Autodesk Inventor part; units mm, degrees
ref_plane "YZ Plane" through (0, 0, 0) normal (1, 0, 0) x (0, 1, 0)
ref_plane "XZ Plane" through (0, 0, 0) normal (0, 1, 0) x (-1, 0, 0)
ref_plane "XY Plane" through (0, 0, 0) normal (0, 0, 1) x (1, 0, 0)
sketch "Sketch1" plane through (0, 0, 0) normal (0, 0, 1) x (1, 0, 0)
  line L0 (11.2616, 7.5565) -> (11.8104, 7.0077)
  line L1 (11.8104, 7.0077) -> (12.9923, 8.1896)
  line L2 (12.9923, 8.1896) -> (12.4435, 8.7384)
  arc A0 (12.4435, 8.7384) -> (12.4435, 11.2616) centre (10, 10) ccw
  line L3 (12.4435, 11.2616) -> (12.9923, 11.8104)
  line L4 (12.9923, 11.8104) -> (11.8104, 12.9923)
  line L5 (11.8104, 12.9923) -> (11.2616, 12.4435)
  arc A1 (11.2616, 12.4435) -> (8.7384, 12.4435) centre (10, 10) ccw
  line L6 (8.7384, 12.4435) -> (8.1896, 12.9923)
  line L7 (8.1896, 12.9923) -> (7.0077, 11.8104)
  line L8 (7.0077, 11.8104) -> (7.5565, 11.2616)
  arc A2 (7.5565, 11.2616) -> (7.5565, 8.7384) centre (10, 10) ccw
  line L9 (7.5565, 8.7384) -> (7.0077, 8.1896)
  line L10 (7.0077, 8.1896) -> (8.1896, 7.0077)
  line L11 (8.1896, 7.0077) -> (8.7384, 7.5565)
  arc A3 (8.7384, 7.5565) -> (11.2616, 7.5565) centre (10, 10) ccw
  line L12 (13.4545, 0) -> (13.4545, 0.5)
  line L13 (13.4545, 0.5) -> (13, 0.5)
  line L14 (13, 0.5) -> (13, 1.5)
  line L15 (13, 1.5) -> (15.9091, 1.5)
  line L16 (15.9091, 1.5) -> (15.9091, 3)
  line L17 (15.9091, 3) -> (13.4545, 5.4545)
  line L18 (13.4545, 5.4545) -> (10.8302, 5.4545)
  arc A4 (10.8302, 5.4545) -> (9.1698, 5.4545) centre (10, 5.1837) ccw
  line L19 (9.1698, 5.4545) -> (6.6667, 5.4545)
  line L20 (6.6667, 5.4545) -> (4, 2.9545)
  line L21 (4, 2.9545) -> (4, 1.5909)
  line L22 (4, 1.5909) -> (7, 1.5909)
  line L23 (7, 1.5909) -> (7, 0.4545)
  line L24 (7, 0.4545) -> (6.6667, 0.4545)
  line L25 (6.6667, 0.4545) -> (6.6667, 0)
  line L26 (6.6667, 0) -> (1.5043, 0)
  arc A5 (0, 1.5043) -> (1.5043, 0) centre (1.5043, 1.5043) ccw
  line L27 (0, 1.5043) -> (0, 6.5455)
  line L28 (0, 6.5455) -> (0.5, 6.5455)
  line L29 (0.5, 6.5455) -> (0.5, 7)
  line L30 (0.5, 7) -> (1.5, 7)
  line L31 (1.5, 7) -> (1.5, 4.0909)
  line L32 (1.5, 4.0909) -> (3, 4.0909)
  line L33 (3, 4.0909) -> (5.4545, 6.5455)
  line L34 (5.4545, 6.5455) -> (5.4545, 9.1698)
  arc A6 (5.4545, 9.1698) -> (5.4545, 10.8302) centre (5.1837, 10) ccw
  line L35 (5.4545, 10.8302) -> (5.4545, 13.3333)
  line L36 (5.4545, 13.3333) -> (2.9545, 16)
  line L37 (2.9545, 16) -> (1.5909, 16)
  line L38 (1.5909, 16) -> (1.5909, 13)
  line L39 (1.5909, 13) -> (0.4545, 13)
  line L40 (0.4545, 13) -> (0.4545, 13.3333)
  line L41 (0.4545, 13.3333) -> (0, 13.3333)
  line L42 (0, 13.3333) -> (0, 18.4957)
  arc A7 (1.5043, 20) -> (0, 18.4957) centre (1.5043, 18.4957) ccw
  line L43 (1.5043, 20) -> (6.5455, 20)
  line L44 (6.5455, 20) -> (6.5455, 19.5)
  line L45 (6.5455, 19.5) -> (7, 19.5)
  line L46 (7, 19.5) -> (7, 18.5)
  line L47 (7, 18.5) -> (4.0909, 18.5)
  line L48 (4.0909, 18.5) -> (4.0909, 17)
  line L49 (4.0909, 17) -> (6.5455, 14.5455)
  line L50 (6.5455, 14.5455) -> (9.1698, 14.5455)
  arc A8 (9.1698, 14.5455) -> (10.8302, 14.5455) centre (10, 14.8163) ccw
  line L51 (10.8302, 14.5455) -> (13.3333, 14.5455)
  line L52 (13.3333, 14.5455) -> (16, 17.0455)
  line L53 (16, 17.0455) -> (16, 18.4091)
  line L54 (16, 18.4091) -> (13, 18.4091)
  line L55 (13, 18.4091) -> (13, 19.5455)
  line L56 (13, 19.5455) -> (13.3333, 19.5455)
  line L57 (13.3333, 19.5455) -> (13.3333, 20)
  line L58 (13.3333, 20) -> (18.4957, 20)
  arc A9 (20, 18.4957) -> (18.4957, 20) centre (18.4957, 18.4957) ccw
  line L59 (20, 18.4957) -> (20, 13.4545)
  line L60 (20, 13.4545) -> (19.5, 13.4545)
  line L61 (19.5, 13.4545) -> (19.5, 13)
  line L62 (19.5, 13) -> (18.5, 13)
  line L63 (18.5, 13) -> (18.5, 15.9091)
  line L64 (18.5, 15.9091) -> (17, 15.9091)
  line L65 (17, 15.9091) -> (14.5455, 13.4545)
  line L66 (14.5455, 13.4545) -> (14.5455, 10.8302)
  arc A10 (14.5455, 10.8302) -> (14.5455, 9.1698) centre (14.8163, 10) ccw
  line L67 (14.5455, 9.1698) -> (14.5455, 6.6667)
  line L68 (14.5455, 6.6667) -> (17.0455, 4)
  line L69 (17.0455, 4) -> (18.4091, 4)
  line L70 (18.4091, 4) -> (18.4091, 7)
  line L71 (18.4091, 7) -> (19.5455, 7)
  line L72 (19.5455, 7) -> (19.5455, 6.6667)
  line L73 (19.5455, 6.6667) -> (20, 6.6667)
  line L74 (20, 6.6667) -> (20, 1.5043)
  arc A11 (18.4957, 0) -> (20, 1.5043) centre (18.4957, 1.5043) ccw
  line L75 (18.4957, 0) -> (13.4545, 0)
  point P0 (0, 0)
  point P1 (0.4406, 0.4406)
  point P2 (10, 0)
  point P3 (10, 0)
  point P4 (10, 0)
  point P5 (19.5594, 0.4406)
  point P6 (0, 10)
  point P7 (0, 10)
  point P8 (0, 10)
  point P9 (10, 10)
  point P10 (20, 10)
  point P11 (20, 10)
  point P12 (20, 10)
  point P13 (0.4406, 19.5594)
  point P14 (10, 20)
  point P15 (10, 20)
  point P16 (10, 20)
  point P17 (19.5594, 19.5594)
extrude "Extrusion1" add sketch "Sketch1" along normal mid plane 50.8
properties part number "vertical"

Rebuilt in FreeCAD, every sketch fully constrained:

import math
import FreeCAD as App
import Part
import Sketcher

V = App.Vector
Q = App.Units.Quantity

doc = App.newDocument("Part")
body = doc.addObject("PartDesign::Body", "Body")

# Sketch on XY plane
sketch1 = body.newObject("Sketcher::SketchObject", "Sketch")
sketch1.AttachmentSupport = (doc.getObject("XY_Plane"), [""])
sketch1.MapMode = "FlatFace"
sketch1.addGeometry([
    Part.LineSegment(V(13.4545, 0.5, 0), V(13.4545, 0, 0)),  # 0
    Part.LineSegment(V(13.4545, 0, 0), V(18.4957, 0, 0)),  # 1
    Part.ArcOfCircle(Part.Circle(V(18.4957, 1.5043, 0), V(0, 0, 1), 1.5043), math.radians(-90), math.radians(0)),  # 2
    Part.LineSegment(V(20, 1.5043, 0), V(20, 6.6667, 0)),  # 3
    Part.LineSegment(V(20, 6.6667, 0), V(19.5455, 6.6667, 0)),  # 4
    Part.LineSegment(V(19.5455, 6.6667, 0), V(19.5455, 7, 0)),  # 5
    Part.LineSegment(V(19.5455, 7, 0), V(18.4091, 7, 0)),  # 6
    Part.LineSegment(V(18.4091, 7, 0), V(18.4091, 4, 0)),  # 7
    Part.LineSegment(V(18.4091, 4, 0), V(17.0455, 4, 0)),  # 8
    Part.LineSegment(V(17.0455, 4, 0), V(14.5455, 6.6667, 0)),  # 9
    Part.LineSegment(V(14.5455, 6.6667, 0), V(14.5455, 9.1698, 0)),  # 10
    Part.ArcOfCircle(Part.Circle(V(14.8163, 10, 0), V(0, 0, 1), 0.873249), math.radians(108.065625), math.radians(251.934375)),  # 11
    Part.LineSegment(V(14.5455, 10.8302, 0), V(14.5455, 13.4545, 0)),  # 12
    Part.LineSegment(V(14.5455, 13.4545, 0), V(17, 15.9091, 0)),  # 13
    Part.LineSegment(V(17, 15.9091, 0), V(18.5, 15.9091, 0)),  # 14
    Part.LineSegment(V(18.5, 15.9091, 0), V(18.5, 13, 0)),  # 15
    Part.LineSegment(V(18.5, 13, 0), V(19.5, 13, 0)),  # 16
    Part.LineSegment(V(19.5, 13, 0), V(19.5, 13.4545, 0)),  # 17
    Part.LineSegment(V(19.5, 13.4545, 0), V(20, 13.4545, 0)),  # 18
    Part.LineSegment(V(20, 13.4545, 0), V(20, 18.4957, 0)),  # 19
    Part.ArcOfCircle(Part.Circle(V(18.4957, 18.4957, 0), V(0, 0, 1), 1.5043), math.radians(0), math.radians(90)),  # 20
    Part.LineSegment(V(18.4957, 20, 0), V(13.3333, 20, 0)),  # 21
    Part.LineSegment(V(13.3333, 20, 0), V(13.3333, 19.5455, 0)),  # 22
    Part.LineSegment(V(13.3333, 19.5455, 0), V(13, 19.5455, 0)),  # 23
    Part.LineSegment(V(13, 19.5455, 0), V(13, 18.4091, 0)),  # 24
    Part.LineSegment(V(13, 18.4091, 0), V(16, 18.4091, 0)),  # 25
    Part.LineSegment(V(16, 18.4091, 0), V(16, 17.0455, 0)),  # 26
    Part.LineSegment(V(16, 17.0455, 0), V(13.3333, 14.5455, 0)),  # 27
    Part.LineSegment(V(13.3333, 14.5455, 0), V(10.8302, 14.5455, 0)),  # 28
    Part.ArcOfCircle(Part.Circle(V(10, 14.8163, 0), V(0, 0, 1), 0.873249), math.radians(-161.934375), math.radians(-18.065625)),  # 29
    Part.LineSegment(V(9.1698, 14.5455, 0), V(6.5455, 14.5455, 0)),  # 30
    Part.LineSegment(V(6.5455, 14.5455, 0), V(4.0909, 17, 0)),  # 31
    Part.LineSegment(V(4.0909, 17, 0), V(4.0909, 18.5, 0)),  # 32
    Part.LineSegment(V(4.0909, 18.5, 0), V(7, 18.5, 0)),  # 33
    Part.LineSegment(V(7, 18.5, 0), V(7, 19.5, 0)),  # 34
    Part.LineSegment(V(7, 19.5, 0), V(6.5455, 19.5, 0)),  # 35
    Part.LineSegment(V(6.5455, 19.5, 0), V(6.5455, 20, 0)),  # 36
    Part.LineSegment(V(6.5455, 20, 0), V(1.5043, 20, 0)),  # 37
    Part.ArcOfCircle(Part.Circle(V(1.5043, 18.4957, 0), V(0, 0, 1), 1.5043), math.radians(90), math.radians(180)),  # 38
    Part.LineSegment(V(0, 18.4957, 0), V(0, 13.3333, 0)),  # 39
    Part.LineSegment(V(0, 13.3333, 0), V(0.4545, 13.3333, 0)),  # 40
    Part.LineSegment(V(0.4545, 13.3333, 0), V(0.4545, 13, 0)),  # 41
    Part.LineSegment(V(0.4545, 13, 0), V(1.5909, 13, 0)),  # 42
    Part.LineSegment(V(1.5909, 13, 0), V(1.5909, 16, 0)),  # 43
    Part.LineSegment(V(1.5909, 16, 0), V(2.9545, 16, 0)),  # 44
    Part.LineSegment(V(2.9545, 16, 0), V(5.4545, 13.3333, 0)),  # 45
    Part.LineSegment(V(5.4545, 13.3333, 0), V(5.4545, 10.8302, 0)),  # 46
    Part.ArcOfCircle(Part.Circle(V(5.1837, 10, 0), V(0, 0, 1), 0.873249), math.radians(-71.934375), math.radians(71.934375)),  # 47
    Part.LineSegment(V(5.4545, 9.1698, 0), V(5.4545, 6.5455, 0)),  # 48
    Part.LineSegment(V(5.4545, 6.5455, 0), V(3, 4.0909, 0)),  # 49
    Part.LineSegment(V(3, 4.0909, 0), V(1.5, 4.0909, 0)),  # 50
    Part.LineSegment(V(1.5, 4.0909, 0), V(1.5, 7, 0)),  # 51
    Part.LineSegment(V(1.5, 7, 0), V(0.5, 7, 0)),  # 52
    Part.LineSegment(V(0.5, 7, 0), V(0.5, 6.5455, 0)),  # 53
    Part.LineSegment(V(0.5, 6.5455, 0), V(0, 6.5455, 0)),  # 54
    Part.LineSegment(V(0, 6.5455, 0), V(0, 1.5043, 0)),  # 55
    Part.ArcOfCircle(Part.Circle(V(1.5043, 1.5043, 0), V(0, 0, 1), 1.5043), math.radians(180), math.radians(270)),  # 56
    Part.LineSegment(V(1.5043, 0, 0), V(6.6667, 0, 0)),  # 57
    Part.LineSegment(V(6.6667, 0, 0), V(6.6667, 0.4545, 0)),  # 58
    Part.LineSegment(V(6.6667, 0.4545, 0), V(7, 0.4545, 0)),  # 59
    Part.LineSegment(V(7, 0.4545, 0), V(7, 1.5909, 0)),  # 60
    Part.LineSegment(V(7, 1.5909, 0), V(4, 1.5909, 0)),  # 61
    Part.LineSegment(V(4, 1.5909, 0), V(4, 2.9545, 0)),  # 62
    Part.LineSegment(V(4, 2.9545, 0), V(6.6667, 5.4545, 0)),  # 63
    Part.LineSegment(V(6.6667, 5.4545, 0), V(9.1698, 5.4545, 0)),  # 64
    Part.ArcOfCircle(Part.Circle(V(10, 5.1837, 0), V(0, 0, 1), 0.873249), math.radians(18.065625), math.radians(161.934375)),  # 65
    Part.LineSegment(V(10.8302, 5.4545, 0), V(13.4545, 5.4545, 0)),  # 66
    Part.LineSegment(V(13.4545, 5.4545, 0), V(15.9091, 3, 0)),  # 67
    Part.LineSegment(V(15.9091, 3, 0), V(15.9091, 1.5, 0)),  # 68
    Part.LineSegment(V(15.9091, 1.5, 0), V(13, 1.5, 0)),  # 69
    Part.LineSegment(V(13, 1.5, 0), V(13, 0.5, 0)),  # 70
    Part.LineSegment(V(13, 0.5, 0), V(13.4545, 0.5, 0)),  # 71
    Part.LineSegment(V(11.8104, 7.0077, 0), V(11.2616, 7.5565, 0)),  # 72
    Part.ArcOfCircle(Part.Circle(V(10, 10, 0), V(0, 0, 1), 2.749969), math.radians(-117.307695), math.radians(-62.692305)),  # 73
    Part.LineSegment(V(8.7384, 7.5565, 0), V(8.1896, 7.0077, 0)),  # 74
    Part.LineSegment(V(8.1896, 7.0077, 0), V(7.0077, 8.1896, 0)),  # 75
    Part.LineSegment(V(7.0077, 8.1896, 0), V(7.5565, 8.7384, 0)),  # 76
    Part.ArcOfCircle(Part.Circle(V(10, 10, 0), V(0, 0, 1), 2.749969), math.radians(152.692305), math.radians(207.307695)),  # 77
    Part.LineSegment(V(7.5565, 11.2616, 0), V(7.0077, 11.8104, 0)),  # 78
    Part.LineSegment(V(7.0077, 11.8104, 0), V(8.1896, 12.9923, 0)),  # 79
    Part.LineSegment(V(8.1896, 12.9923, 0), V(8.7384, 12.4435, 0)),  # 80
    Part.ArcOfCircle(Part.Circle(V(10, 10, 0), V(0, 0, 1), 2.749969), math.radians(62.692305), math.radians(117.307695)),  # 81
    Part.LineSegment(V(11.2616, 12.4435, 0), V(11.8104, 12.9923, 0)),  # 82
    Part.LineSegment(V(11.8104, 12.9923, 0), V(12.9923, 11.8104, 0)),  # 83
    Part.LineSegment(V(12.9923, 11.8104, 0), V(12.4435, 11.2616, 0)),  # 84
    Part.ArcOfCircle(Part.Circle(V(10, 10, 0), V(0, 0, 1), 2.749969), math.radians(-27.307695), math.radians(27.307695)),  # 85
    Part.LineSegment(V(12.4435, 8.7384, 0), V(12.9923, 8.1896, 0)),  # 86
    Part.LineSegment(V(12.9923, 8.1896, 0), V(11.8104, 7.0077, 0)),  # 87
], False)
sketch1.addConstraint([
    Sketcher.Constraint("Coincident", 0, 2, 1, 1),
    Sketcher.Constraint("Tangent", 1, 2, 2, 1),
    Sketcher.Constraint("Tangent", 2, 2, 3, 1),
    Sketcher.Constraint("Coincident", 3, 2, 4, 1),
    Sketcher.Constraint("Coincident", 4, 2, 5, 1),
    Sketcher.Constraint("Coincident", 5, 2, 6, 1),
    Sketcher.Constraint("Coincident", 6, 2, 7, 1),
    Sketcher.Constraint("Coincident", 7, 2, 8, 1),
    Sketcher.Constraint("Coincident", 8, 2, 9, 1),
    Sketcher.Constraint("Coincident", 9, 2, 10, 1),
    Sketcher.Constraint("Coincident", 10, 2, 11, 2),
    Sketcher.Constraint("Coincident", 11, 1, 12, 1),
    Sketcher.Constraint("Coincident", 12, 2, 13, 1),
    Sketcher.Constraint("Coincident", 13, 2, 14, 1),
    Sketcher.Constraint("Coincident", 14, 2, 15, 1),
    Sketcher.Constraint("Coincident", 15, 2, 16, 1),
    Sketcher.Constraint("Coincident", 16, 2, 17, 1),
    Sketcher.Constraint("Coincident", 17, 2, 18, 1),
    Sketcher.Constraint("Coincident", 18, 2, 19, 1),
    Sketcher.Constraint("Tangent", 19, 2, 20, 1),
    Sketcher.Constraint("Tangent", 20, 2, 21, 1),
    Sketcher.Constraint("Coincident", 21, 2, 22, 1),
    Sketcher.Constraint("Coincident", 22, 2, 23, 1),
    Sketcher.Constraint("Coincident", 23, 2, 24, 1),
    Sketcher.Constraint("Coincident", 24, 2, 25, 1),
    Sketcher.Constraint("Coincident", 25, 2, 26, 1),
    Sketcher.Constraint("Coincident", 26, 2, 27, 1),
    Sketcher.Constraint("Coincident", 27, 2, 28, 1),
    Sketcher.Constraint("Coincident", 28, 2, 29, 2),
    Sketcher.Constraint("Coincident", 29, 1, 30, 1),
    Sketcher.Constraint("Coincident", 30, 2, 31, 1),
    Sketcher.Constraint("Coincident", 31, 2, 32, 1),
    Sketcher.Constraint("Coincident", 32, 2, 33, 1),
    Sketcher.Constraint("Coincident", 33, 2, 34, 1),
    Sketcher.Constraint("Coincident", 34, 2, 35, 1),
    Sketcher.Constraint("Coincident", 35, 2, 36, 1),
    Sketcher.Constraint("Coincident", 36, 2, 37, 1),
    Sketcher.Constraint("Tangent", 37, 2, 38, 1),
    Sketcher.Constraint("Tangent", 38, 2, 39, 1),
    Sketcher.Constraint("Coincident", 39, 2, 40, 1),
    Sketcher.Constraint("Coincident", 40, 2, 41, 1),
    Sketcher.Constraint("Coincident", 41, 2, 42, 1),
    Sketcher.Constraint("Coincident", 42, 2, 43, 1),
    Sketcher.Constraint("Coincident", 43, 2, 44, 1),
    Sketcher.Constraint("Coincident", 44, 2, 45, 1),
    Sketcher.Constraint("Coincident", 45, 2, 46, 1),
    Sketcher.Constraint("Coincident", 46, 2, 47, 2),
    Sketcher.Constraint("Coincident", 47, 1, 48, 1),
    Sketcher.Constraint("Coincident", 48, 2, 49, 1),
    Sketcher.Constraint("Coincident", 49, 2, 50, 1),
    Sketcher.Constraint("Coincident", 50, 2, 51, 1),
    Sketcher.Constraint("Coincident", 51, 2, 52, 1),
    Sketcher.Constraint("Coincident", 52, 2, 53, 1),
    Sketcher.Constraint("Coincident", 53, 2, 54, 1),
    Sketcher.Constraint("Coincident", 54, 2, 55, 1),
    Sketcher.Constraint("Tangent", 55, 2, 56, 1),
    Sketcher.Constraint("Tangent", 56, 2, 57, 1),
    Sketcher.Constraint("Coincident", 57, 2, 58, 1),
    Sketcher.Constraint("Coincident", 58, 2, 59, 1),
    Sketcher.Constraint("Coincident", 59, 2, 60, 1),
    Sketcher.Constraint("Coincident", 60, 2, 61, 1),
    Sketcher.Constraint("Coincident", 61, 2, 62, 1),
    Sketcher.Constraint("Coincident", 62, 2, 63, 1),
    Sketcher.Constraint("Coincident", 63, 2, 64, 1),
    Sketcher.Constraint("Coincident", 64, 2, 65, 2),
    Sketcher.Constraint("Coincident", 65, 1, 66, 1),
    Sketcher.Constraint("Coincident", 66, 2, 67, 1),
    Sketcher.Constraint("Coincident", 67, 2, 68, 1),
    Sketcher.Constraint("Coincident", 68, 2, 69, 1),
    Sketcher.Constraint("Coincident", 69, 2, 70, 1),
    Sketcher.Constraint("Coincident", 70, 2, 71, 1),
    Sketcher.Constraint("Coincident", 71, 2, 0, 1),
    Sketcher.Constraint("Coincident", 72, 2, 73, 2),
    Sketcher.Constraint("Coincident", 73, 1, 74, 1),
    Sketcher.Constraint("Coincident", 74, 2, 75, 1),
    Sketcher.Constraint("Coincident", 75, 2, 76, 1),
    Sketcher.Constraint("Coincident", 76, 2, 77, 2),
    Sketcher.Constraint("Coincident", 77, 1, 78, 1),
    Sketcher.Constraint("Coincident", 78, 2, 79, 1),
    Sketcher.Constraint("Coincident", 79, 2, 80, 1),
    Sketcher.Constraint("Coincident", 80, 2, 81, 2),
    Sketcher.Constraint("Coincident", 81, 1, 82, 1),
    Sketcher.Constraint("Coincident", 82, 2, 83, 1),
    Sketcher.Constraint("Coincident", 83, 2, 84, 1),
    Sketcher.Constraint("Coincident", 84, 2, 85, 2),
    Sketcher.Constraint("Coincident", 85, 1, 86, 1),
    Sketcher.Constraint("Coincident", 86, 2, 87, 1),
    Sketcher.Constraint("Coincident", 87, 2, 72, 1),
    Sketcher.Constraint("Vertical", 0),
    Sketcher.Constraint("Horizontal", 1),
    Sketcher.Constraint("Vertical", 3),
    Sketcher.Constraint("Horizontal", 4),
    Sketcher.Constraint("Vertical", 5),
    Sketcher.Constraint("Horizontal", 6),
    Sketcher.Constraint("Vertical", 7),
    Sketcher.Constraint("Horizontal", 8),
    Sketcher.Constraint("Vertical", 10),
    Sketcher.Constraint("Vertical", 12),
    Sketcher.Constraint("Horizontal", 14),
    Sketcher.Constraint("Vertical", 15),
    Sketcher.Constraint("Horizontal", 16),
    Sketcher.Constraint("Vertical", 17),
    Sketcher.Constraint("Horizontal", 18),
    Sketcher.Constraint("Vertical", 19),
    Sketcher.Constraint("Horizontal", 21),
    Sketcher.Constraint("Vertical", 22),
    Sketcher.Constraint("Horizontal", 23),
    Sketcher.Constraint("Vertical", 24),
    Sketcher.Constraint("Horizontal", 25),
    Sketcher.Constraint("Vertical", 26),
    Sketcher.Constraint("Horizontal", 28),
    Sketcher.Constraint("Horizontal", 30),
    Sketcher.Constraint("Vertical", 32),
    Sketcher.Constraint("Horizontal", 33),
    Sketcher.Constraint("Vertical", 34),
    Sketcher.Constraint("Horizontal", 35),
    Sketcher.Constraint("Vertical", 36),
    Sketcher.Constraint("Horizontal", 37),
    Sketcher.Constraint("Vertical", 39),
    Sketcher.Constraint("Horizontal", 40),
    Sketcher.Constraint("Vertical", 41),
    Sketcher.Constraint("Horizontal", 42),
    Sketcher.Constraint("Vertical", 43),
    Sketcher.Constraint("Horizontal", 44),
    Sketcher.Constraint("Vertical", 46),
    Sketcher.Constraint("Vertical", 48),
    Sketcher.Constraint("Horizontal", 50),
    Sketcher.Constraint("Vertical", 51),
    Sketcher.Constraint("Horizontal", 52),
    Sketcher.Constraint("Vertical", 53),
    Sketcher.Constraint("Horizontal", 54),
    Sketcher.Constraint("Vertical", 55),
    Sketcher.Constraint("Horizontal", 57),
    Sketcher.Constraint("Vertical", 58),
    Sketcher.Constraint("Horizontal", 59),
    Sketcher.Constraint("Vertical", 60),
    Sketcher.Constraint("Horizontal", 61),
    Sketcher.Constraint("Vertical", 62),
    Sketcher.Constraint("Horizontal", 64),
    Sketcher.Constraint("Horizontal", 66),
    Sketcher.Constraint("Vertical", 68),
    Sketcher.Constraint("Horizontal", 69),
    Sketcher.Constraint("Vertical", 70),
    Sketcher.Constraint("Horizontal", 71),
    Sketcher.Constraint("Coincident", 77, 3, 73, 3),
    Sketcher.Constraint("Coincident", 81, 3, 73, 3),
    Sketcher.Constraint("Coincident", 85, 3, 73, 3),
    Sketcher.Constraint("Equal", 2, 20),
    Sketcher.Constraint("Equal", 11, 29),
    Sketcher.Constraint("Equal", 20, 38),
    Sketcher.Constraint("Equal", 29, 47),
    Sketcher.Constraint("Equal", 38, 56),
    Sketcher.Constraint("Equal", 47, 65),
    Sketcher.Constraint("Equal", 73, 77),
    Sketcher.Constraint("Equal", 77, 81),
    Sketcher.Constraint("Equal", 81, 85),
    Sketcher.Constraint("PointOnObject", 0, 2, -1),
    Sketcher.Constraint("PointOnObject", 38, 2, -2),
    Sketcher.Constraint("PointOnObject", 54, 2, -2),
    Sketcher.Constraint("PointOnObject", 56, 2, -1),
    Sketcher.Constraint("Perpendicular", 9, 27),
    Sketcher.Constraint("Perpendicular", 13, 31),
    Sketcher.Constraint("Perpendicular", 27, 45),
    Sketcher.Constraint("Perpendicular", 31, 49),
    Sketcher.Constraint("Perpendicular", 45, 63),
    Sketcher.Constraint("Perpendicular", 49, 67),
    Sketcher.Constraint("Parallel", 67, 72),
    Sketcher.Constraint("Perpendicular", 72, 74),
    Sketcher.Constraint("Perpendicular", 74, 75),
    Sketcher.Constraint("Perpendicular", 75, 76),
    Sketcher.Constraint("Perpendicular", 76, 78),
    Sketcher.Constraint("Perpendicular", 78, 79),
    Sketcher.Constraint("Perpendicular", 79, 80),
    Sketcher.Constraint("Perpendicular", 80, 82),
    Sketcher.Constraint("Perpendicular", 82, 83),
    Sketcher.Constraint("Perpendicular", 83, 84),
    Sketcher.Constraint("Perpendicular", 84, 86),
    Sketcher.Constraint("Perpendicular", 86, 87),
    Sketcher.Constraint("Horizontal", 20, 3, 38, 3),
    Sketcher.Constraint("Horizontal", 11, 3, 47, 3),
    Sketcher.Constraint("Horizontal", 47, 3, 73, 3),
    Sketcher.Constraint("Horizontal", 4, 2, 9, 2),
    Sketcher.Constraint("Horizontal", 12, 2, 17, 2),
    Sketcher.Constraint("Horizontal", 28, 2, 29, 1),
    Sketcher.Constraint("Horizontal", 16, 2, 41, 2),
    Sketcher.Constraint("Horizontal", 40, 2, 45, 2),
    Sketcher.Constraint("Horizontal", 11, 1, 46, 2),
    Sketcher.Constraint("Horizontal", 10, 2, 47, 1),
    Sketcher.Constraint("Horizontal", 6, 2, 51, 2),
    Sketcher.Constraint("Horizontal", 48, 2, 53, 2),
    Sketcher.Constraint("Horizontal", 64, 2, 65, 1),
    Sketcher.Constraint("Horizontal", 72, 2, 73, 1),
    Sketcher.Constraint("Horizontal", 80, 2, 81, 1),
    Sketcher.Constraint("Horizontal", 79, 2, 82, 2),
    Sketcher.Constraint("Horizontal", 78, 2, 83, 2),
    Sketcher.Constraint("Horizontal", 77, 1, 84, 2),
    Sketcher.Constraint("Horizontal", 76, 2, 85, 1),
    Sketcher.Constraint("Horizontal", 75, 2, 86, 2),
    Sketcher.Constraint("Vertical", 2, 3, 20, 3),
    Sketcher.Constraint("Vertical", 29, 3, 65, 3),
    Sketcher.Constraint("Vertical", 65, 3, 73, 3),
    Sketcher.Constraint("Vertical", 10, 2, 11, 1),
    Sketcher.Constraint("Vertical", 22, 2, 27, 2),
    Sketcher.Constraint("Vertical", 30, 2, 35, 2),
    Sketcher.Constraint("Vertical", 34, 2, 59, 2),
    Sketcher.Constraint("Vertical", 58, 2, 63, 2),
    Sketcher.Constraint("Vertical", 29, 1, 64, 2),
    Sketcher.Constraint("Vertical", 0, 2, 66, 2),
    Sketcher.Constraint("Vertical", 24, 2, 69, 2),
    Sketcher.Constraint("Vertical", 76, 2, 77, 1),
    Sketcher.Constraint("Vertical", 75, 2, 78, 2),
    Sketcher.Constraint("Vertical", 74, 2, 79, 2),
    Sketcher.Constraint("Equal", 4, 35),
    Sketcher.Constraint("Equal", 1, 37),
    Sketcher.Constraint("Equal", 35, 40),
    Sketcher.Constraint("Equal", 6, 42),
    Sketcher.Constraint("Equal", 8, 44),
    Sketcher.Constraint("Equal", 14, 50),
    Sketcher.Constraint("Equal", 16, 52),
    Sketcher.Constraint("Equal", 18, 54),
    Sketcher.Constraint("Equal", 21, 57),
    Sketcher.Constraint("Equal", 23, 59),
    Sketcher.Constraint("Equal", 25, 61),
    Sketcher.Constraint("Equal", 28, 64),
    Sketcher.Constraint("Equal", 33, 69),
    Sketcher.Constraint("Equal", 54, 0),
    Sketcher.Constraint("Equal", 57, 3),
    Sketcher.Constraint("Equal", 59, 5),
    Sketcher.Constraint("Equal", 61, 7),
    Sketcher.Constraint("Equal", 64, 10),
    Sketcher.Constraint("Equal", 66, 12),
    Sketcher.Constraint("Equal", 69, 15),
    Sketcher.Constraint("Equal", 71, 17),
    Sketcher.Constraint("Equal", 37, 19),
    Sketcher.Constraint("Equal", 17, 22),
    Sketcher.Constraint("Equal", 42, 24),
    Sketcher.Constraint("Equal", 44, 26),
    Sketcher.Constraint("Equal", 50, 32),
    Sketcher.Constraint("Equal", 52, 34),
    Sketcher.Constraint("Equal", 3, 39),
    Sketcher.Constraint("Equal", 7, 43),
    Sketcher.Constraint("Equal", 12, 48),
    Sketcher.Constraint("Equal", 53, 58),
    Sketcher.Constraint("Equal", 24, 60),
    Sketcher.Constraint("Equal", 26, 62),
    Sketcher.Constraint("Equal", 32, 68),
    Sketcher.Constraint("Equal", 74, 76),
    Sketcher.Constraint("DistanceX", 16, 1, 16, 2, Q("1 mm")),
    Sketcher.Constraint("DistanceX", 25, 1, 25, 2, Q("3 mm")),
    Sketcher.Constraint("Radius", 73, Q("2.75 mm")),
    Sketcher.Constraint("DistanceX", 14, 1, 14, 2, Q("1.5 mm")),
    Sketcher.Constraint("DistanceX", 18, 1, 18, 2, Q("0.5 mm")),
    Sketcher.Constraint("DistanceY", -1, 1, 11, 3, Q("10 mm")),
    Sketcher.Constraint("DistanceX", -1, 1, 29, 3, Q("10 mm")),
    Sketcher.Constraint("DistanceY", -1, 1, 5, 2, Q("7 mm")),
    Sketcher.Constraint("Radius", 2, Q("1.5043 mm")),
    Sketcher.Constraint("Radius", 11, Q("0.8732 mm")),
    Sketcher.Constraint("DistanceX", 28, 2, 28, 1, Q("2.503 mm")),
    Sketcher.Constraint("DistanceX", 33, 1, 33, 2, Q("2.909 mm")),
    Sketcher.Constraint("DistanceX", 1, 1, 1, 2, Q("5.0412 mm")),
    Sketcher.Constraint("DistanceX", 6, 2, 6, 1, Q("1.1364 mm")),
    Sketcher.Constraint("DistanceX", 8, 2, 8, 1, Q("1.3636 mm")),
    Sketcher.Constraint("DistanceX", 21, 2, 21, 1, Q("5.1624 mm")),
    Sketcher.Constraint("Distance", 72, Q("0.7761 mm")),
    Sketcher.Constraint("Distance", 75, Q("1.6715 mm")),
])
pad1 = body.newObject("PartDesign::Pad", "Pad")
pad1.Profile = sketch1
pad1.Length = 50.8
pad1.Midplane = True

doc.recompute()
